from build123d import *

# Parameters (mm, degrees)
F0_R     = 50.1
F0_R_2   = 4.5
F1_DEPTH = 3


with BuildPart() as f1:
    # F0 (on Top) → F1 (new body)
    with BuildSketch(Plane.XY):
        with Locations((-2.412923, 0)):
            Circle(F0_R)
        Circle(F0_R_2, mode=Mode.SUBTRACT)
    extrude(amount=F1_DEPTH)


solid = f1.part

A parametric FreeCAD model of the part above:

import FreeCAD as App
import Part
import Sketcher

V = App.Vector

doc = App.newDocument("Part")
body = doc.addObject("PartDesign::Body", "Body")

# Sketch on XY plane
sketch1 = body.newObject("Sketcher::SketchObject", "Sketch")
sketch1.AttachmentSupport = (doc.getObject("XY_Plane"), [""])
sketch1.MapMode = "FlatFace"
sketch1.addGeometry([
    Part.Circle(V(-2.4, 0, 0), V(0, 0, 1), 50.1),
    Part.Circle(V(0, 0, 0), V(0, 0, 1), 4.5),
], False)
sketch1.addConstraint([
    Sketcher.Constraint("Coincident", 1, 3, -1, 1),
    Sketcher.Constraint("PointOnObject", 0, 3, -1),
    Sketcher.Constraint("Diameter", 1, 9.0),
    Sketcher.Constraint("Diameter", 0, 100.2),
    Sketcher.Constraint("DistanceX", 0, 3, -1, 1, 2.412923),
])
pad1 = body.newObject("PartDesign::Pad", "Pad")
pad1.Profile = sketch1
pad1.Length = 3

doc.recompute()
